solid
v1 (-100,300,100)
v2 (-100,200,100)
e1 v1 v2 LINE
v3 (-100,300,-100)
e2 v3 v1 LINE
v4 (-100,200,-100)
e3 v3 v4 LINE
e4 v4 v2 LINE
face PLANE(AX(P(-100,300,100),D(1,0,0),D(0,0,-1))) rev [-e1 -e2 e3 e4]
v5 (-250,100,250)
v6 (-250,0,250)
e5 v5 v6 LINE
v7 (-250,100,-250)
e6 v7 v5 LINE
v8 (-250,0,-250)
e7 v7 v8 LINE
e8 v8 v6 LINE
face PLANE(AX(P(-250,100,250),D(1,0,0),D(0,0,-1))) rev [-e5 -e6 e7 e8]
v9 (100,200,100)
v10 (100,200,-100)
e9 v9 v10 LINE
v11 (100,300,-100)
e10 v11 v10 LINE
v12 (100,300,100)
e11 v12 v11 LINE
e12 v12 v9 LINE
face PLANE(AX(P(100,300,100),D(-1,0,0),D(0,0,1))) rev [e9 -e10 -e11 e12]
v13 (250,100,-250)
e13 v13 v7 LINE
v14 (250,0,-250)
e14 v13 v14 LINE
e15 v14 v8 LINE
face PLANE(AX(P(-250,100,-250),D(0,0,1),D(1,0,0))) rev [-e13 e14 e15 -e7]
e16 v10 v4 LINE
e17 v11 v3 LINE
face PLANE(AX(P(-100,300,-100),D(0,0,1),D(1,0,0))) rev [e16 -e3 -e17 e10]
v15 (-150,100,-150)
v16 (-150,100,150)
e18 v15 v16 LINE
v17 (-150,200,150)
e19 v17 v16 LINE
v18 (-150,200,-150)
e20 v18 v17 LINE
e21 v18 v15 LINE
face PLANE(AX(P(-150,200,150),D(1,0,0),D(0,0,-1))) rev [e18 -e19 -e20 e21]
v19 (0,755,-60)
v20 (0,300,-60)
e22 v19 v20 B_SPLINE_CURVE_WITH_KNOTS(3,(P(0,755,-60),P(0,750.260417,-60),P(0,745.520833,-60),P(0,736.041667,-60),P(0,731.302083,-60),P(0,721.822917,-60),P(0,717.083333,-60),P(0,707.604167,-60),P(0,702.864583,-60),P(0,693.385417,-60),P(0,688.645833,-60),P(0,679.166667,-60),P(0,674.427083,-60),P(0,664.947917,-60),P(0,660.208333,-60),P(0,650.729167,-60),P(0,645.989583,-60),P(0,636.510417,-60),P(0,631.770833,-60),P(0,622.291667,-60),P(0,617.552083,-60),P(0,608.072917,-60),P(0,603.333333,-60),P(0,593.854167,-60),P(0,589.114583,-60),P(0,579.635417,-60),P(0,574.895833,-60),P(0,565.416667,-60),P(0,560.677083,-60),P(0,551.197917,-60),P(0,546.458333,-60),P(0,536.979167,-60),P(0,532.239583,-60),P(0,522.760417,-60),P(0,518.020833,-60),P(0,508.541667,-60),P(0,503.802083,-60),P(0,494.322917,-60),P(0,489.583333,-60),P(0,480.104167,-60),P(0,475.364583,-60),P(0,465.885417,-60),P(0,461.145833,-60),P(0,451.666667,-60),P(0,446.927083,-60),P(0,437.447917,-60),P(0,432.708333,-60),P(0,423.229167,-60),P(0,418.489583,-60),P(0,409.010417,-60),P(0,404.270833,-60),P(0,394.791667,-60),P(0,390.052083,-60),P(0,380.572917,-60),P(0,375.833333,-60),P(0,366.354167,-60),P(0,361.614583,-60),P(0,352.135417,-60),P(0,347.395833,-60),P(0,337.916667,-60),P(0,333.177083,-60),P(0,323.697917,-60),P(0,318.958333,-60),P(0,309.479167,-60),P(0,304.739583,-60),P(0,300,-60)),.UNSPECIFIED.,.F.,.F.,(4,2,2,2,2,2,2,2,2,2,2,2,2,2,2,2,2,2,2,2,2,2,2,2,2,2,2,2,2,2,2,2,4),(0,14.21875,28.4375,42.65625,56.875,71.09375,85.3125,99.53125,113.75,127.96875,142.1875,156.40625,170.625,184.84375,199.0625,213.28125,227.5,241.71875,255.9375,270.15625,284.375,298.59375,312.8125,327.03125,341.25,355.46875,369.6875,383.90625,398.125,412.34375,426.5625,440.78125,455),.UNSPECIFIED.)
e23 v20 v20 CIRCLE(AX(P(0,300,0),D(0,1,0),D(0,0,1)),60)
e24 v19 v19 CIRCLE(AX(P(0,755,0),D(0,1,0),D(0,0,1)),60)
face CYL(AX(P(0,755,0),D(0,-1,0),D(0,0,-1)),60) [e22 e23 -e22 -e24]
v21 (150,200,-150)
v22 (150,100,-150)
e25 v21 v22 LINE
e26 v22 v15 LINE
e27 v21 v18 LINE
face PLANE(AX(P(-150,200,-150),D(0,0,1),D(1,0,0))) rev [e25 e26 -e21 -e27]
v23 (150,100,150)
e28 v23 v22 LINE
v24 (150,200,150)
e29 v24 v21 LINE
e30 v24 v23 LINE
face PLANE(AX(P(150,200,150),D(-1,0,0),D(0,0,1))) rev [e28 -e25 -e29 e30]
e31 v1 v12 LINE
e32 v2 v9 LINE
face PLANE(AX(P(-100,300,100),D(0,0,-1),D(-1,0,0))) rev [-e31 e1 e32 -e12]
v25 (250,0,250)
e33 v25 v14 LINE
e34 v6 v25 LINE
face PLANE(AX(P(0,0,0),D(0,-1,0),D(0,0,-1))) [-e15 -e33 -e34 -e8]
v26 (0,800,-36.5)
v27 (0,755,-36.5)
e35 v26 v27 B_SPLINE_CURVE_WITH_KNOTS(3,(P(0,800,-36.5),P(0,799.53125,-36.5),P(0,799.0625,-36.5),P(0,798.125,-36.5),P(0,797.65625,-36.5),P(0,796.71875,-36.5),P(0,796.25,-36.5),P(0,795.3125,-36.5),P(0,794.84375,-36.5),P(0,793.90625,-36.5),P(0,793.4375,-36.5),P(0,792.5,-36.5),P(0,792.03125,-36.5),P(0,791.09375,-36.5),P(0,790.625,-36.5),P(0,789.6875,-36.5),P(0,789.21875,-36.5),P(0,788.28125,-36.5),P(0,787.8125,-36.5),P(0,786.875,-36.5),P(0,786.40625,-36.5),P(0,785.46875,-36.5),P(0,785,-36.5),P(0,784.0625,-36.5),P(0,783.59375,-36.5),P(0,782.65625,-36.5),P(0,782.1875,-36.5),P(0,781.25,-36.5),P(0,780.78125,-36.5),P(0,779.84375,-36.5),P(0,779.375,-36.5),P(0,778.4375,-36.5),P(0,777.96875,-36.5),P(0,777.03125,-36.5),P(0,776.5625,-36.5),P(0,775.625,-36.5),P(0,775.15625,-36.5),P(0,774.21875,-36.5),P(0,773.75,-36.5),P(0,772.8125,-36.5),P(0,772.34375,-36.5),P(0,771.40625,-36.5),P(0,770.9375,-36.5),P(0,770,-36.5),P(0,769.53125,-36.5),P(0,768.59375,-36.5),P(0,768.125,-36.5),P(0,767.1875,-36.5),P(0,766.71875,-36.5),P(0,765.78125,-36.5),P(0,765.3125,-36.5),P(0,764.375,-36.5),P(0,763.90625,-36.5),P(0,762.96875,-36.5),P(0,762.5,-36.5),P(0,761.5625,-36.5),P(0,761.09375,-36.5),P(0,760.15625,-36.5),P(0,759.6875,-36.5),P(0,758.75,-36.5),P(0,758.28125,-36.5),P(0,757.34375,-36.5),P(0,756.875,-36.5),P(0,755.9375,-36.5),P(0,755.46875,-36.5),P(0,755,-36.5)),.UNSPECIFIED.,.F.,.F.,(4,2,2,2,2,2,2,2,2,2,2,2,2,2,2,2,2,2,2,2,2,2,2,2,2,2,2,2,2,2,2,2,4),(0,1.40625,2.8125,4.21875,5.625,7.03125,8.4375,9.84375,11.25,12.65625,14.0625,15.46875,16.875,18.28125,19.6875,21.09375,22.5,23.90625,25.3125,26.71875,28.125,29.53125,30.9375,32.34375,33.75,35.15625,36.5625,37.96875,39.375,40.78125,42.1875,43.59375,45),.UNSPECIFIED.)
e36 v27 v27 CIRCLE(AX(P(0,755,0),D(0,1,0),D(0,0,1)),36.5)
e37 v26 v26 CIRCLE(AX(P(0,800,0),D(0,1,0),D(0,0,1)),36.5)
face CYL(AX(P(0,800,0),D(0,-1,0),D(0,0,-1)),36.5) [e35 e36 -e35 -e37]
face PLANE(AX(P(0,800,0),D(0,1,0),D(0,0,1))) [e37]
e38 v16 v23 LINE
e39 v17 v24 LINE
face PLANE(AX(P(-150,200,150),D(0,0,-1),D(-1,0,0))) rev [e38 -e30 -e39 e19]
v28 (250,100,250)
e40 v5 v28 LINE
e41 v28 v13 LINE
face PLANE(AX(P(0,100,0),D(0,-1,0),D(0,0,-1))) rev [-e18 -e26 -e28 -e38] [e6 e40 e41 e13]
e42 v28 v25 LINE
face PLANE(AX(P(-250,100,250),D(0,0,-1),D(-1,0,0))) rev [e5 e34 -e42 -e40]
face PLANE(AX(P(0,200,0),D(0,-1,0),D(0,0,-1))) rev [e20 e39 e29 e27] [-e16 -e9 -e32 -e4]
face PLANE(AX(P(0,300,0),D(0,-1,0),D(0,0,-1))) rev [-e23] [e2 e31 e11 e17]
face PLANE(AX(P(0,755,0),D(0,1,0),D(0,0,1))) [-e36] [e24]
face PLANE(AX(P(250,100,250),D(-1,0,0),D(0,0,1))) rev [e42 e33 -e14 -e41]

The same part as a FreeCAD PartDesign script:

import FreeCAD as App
import Part
import Sketcher
from FreeCAD import Vector

doc = App.newDocument("Part")
body = doc.addObject("PartDesign::Body", "Body")

sketch1 = body.newObject("Sketcher::SketchObject", "Sketch")
sketch1.AttachmentSupport = (doc.getObject("XZ_Plane"), [""])
sketch1.MapMode = "FlatFace"
sketch1.addGeometry(Part.LineSegment(Vector(-250, -250, 0), Vector(-250, 250, 0)), False)
sketch1.addGeometry(Part.LineSegment(Vector(-250, 250, 0), Vector(250, 250, 0)), False)
sketch1.addGeometry(Part.LineSegment(Vector(250, 250, 0), Vector(250, -250, 0)), False)
sketch1.addGeometry(Part.LineSegment(Vector(250, -250, 0), Vector(-250, -250, 0)), False)
sketch1.addConstraint(Sketcher.Constraint("Coincident", 0, 2, 1, 1))
sketch1.addConstraint(Sketcher.Constraint("Coincident", 1, 2, 2, 1))
sketch1.addConstraint(Sketcher.Constraint("Coincident", 2, 2, 3, 1))
sketch1.addConstraint(Sketcher.Constraint("Coincident", 3, 2, 0, 1))
sketch1.addConstraint(Sketcher.Constraint("Vertical", 0))
sketch1.addConstraint(Sketcher.Constraint("Horizontal", 1))
sketch1.addConstraint(Sketcher.Constraint("Vertical", 2))
sketch1.addConstraint(Sketcher.Constraint("Horizontal", 3))
sketch1.addConstraint(Sketcher.Constraint("Symmetric", 0, 2, 2, 2, -1, 1))
sketch1.addConstraint(Sketcher.Constraint("Equal", 3, 0))
sketch1.addConstraint(Sketcher.Constraint("DistanceX", 1, 1, 1, 2, 500.0))
pad1 = body.newObject("PartDesign::Pad", "Pad")
pad1.Profile = sketch1
pad1.Length = 100
pad1.Reversed = True

sketch2 = body.newObject("Sketcher::SketchObject", "Sketch001")
sketch2.AttachmentSupport = (doc.getObject("XZ_Plane"), [""])
sketch2.MapMode = "FlatFace"
sketch2.AttachmentOffset = App.Placement(Vector(0, 0, -100), App.Rotation())
sketch2.addGeometry(Part.LineSegment(Vector(-150, -150, 0), Vector(-150, 150, 0)), False)
sketch2.addGeometry(Part.LineSegment(Vector(-150, 150, 0), Vector(150, 150, 0)), False)
sketch2.addGeometry(Part.LineSegment(Vector(150, 150, 0), Vector(150, -150, 0)), False)
sketch2.addGeometry(Part.LineSegment(Vector(150, -150, 0), Vector(-150, -150, 0)), False)
sketch2.addConstraint(Sketcher.Constraint("Coincident", 0, 2, 1, 1))
sketch2.addConstraint(Sketcher.Constraint("Coincident", 1, 2, 2, 1))
sketch2.addConstraint(Sketcher.Constraint("Coincident", 2, 2, 3, 1))
sketch2.addConstraint(Sketcher.Constraint("Coincident", 3, 2, 0, 1))
sketch2.addConstraint(Sketcher.Constraint("Vertical", 0))
sketch2.addConstraint(Sketcher.Constraint("Horizontal", 1))
sketch2.addConstraint(Sketcher.Constraint("Vertical", 2))
sketch2.addConstraint(Sketcher.Constraint("Horizontal", 3))
sketch2.addConstraint(Sketcher.Constraint("Symmetric", 0, 2, 2, 2, -1, 1))
sketch2.addConstraint(Sketcher.Constraint("Equal", 3, 0))
sketch2.addConstraint(Sketcher.Constraint("DistanceX", 1, 1, 1, 2, 300.0))
pad2 = body.newObject("PartDesign::Pad", "Pad001")
pad2.Profile = sketch2
pad2.Length = 100
pad2.Reversed = True

sketch3 = body.newObject("Sketcher::SketchObject", "Sketch002")
sketch3.AttachmentSupport = (doc.getObject("XZ_Plane"), [""])
sketch3.MapMode = "FlatFace"
sketch3.AttachmentOffset = App.Placement(Vector(0, 0, -200), App.Rotation())
sketch3.addGeometry(Part.LineSegment(Vector(-100, -100, 0), Vector(-100, 100, 0)), False)
sketch3.addGeometry(Part.LineSegment(Vector(-100, 100, 0), Vector(100, 100, 0)), False)
sketch3.addGeometry(Part.LineSegment(Vector(100, 100, 0), Vector(100, -100, 0)), False)
sketch3.addGeometry(Part.LineSegment(Vector(100, -100, 0), Vector(-100, -100, 0)), False)
sketch3.addConstraint(Sketcher.Constraint("Coincident", 0, 2, 1, 1))
sketch3.addConstraint(Sketcher.Constraint("Coincident", 1, 2, 2, 1))
sketch3.addConstraint(Sketcher.Constraint("Coincident", 2, 2, 3, 1))
sketch3.addConstraint(Sketcher.Constraint("Coincident", 3, 2, 0, 1))
sketch3.addConstraint(Sketcher.Constraint("Vertical", 0))
sketch3.addConstraint(Sketcher.Constraint("Horizontal", 1))
sketch3.addConstraint(Sketcher.Constraint("Vertical", 2))
sketch3.addConstraint(Sketcher.Constraint("Horizontal", 3))
sketch3.addConstraint(Sketcher.Constraint("Symmetric", 0, 2, 2, 2, -1, 1))
sketch3.addConstraint(Sketcher.Constraint("Equal", 3, 0))
sketch3.addConstraint(Sketcher.Constraint("DistanceX", 1, 1, 1, 2, 200.0))
pad3 = body.newObject("PartDesign::Pad", "Pad002")
pad3.Profile = sketch3
pad3.Length = 100
pad3.Reversed = True

sketch4 = body.newObject("Sketcher::SketchObject", "Sketch003")
sketch4.AttachmentSupport = (doc.getObject("XZ_Plane"), [""])
sketch4.MapMode = "FlatFace"
sketch4.AttachmentOffset = App.Placement(Vector(0, 0, -300), App.Rotation())
sketch4.addGeometry(Part.Circle(Vector(0, 0, 0), Vector(0, 0, 1), 60), False)
sketch4.addConstraint(Sketcher.Constraint("Coincident", 0, 3, -1, 1))
sketch4.addConstraint(Sketcher.Constraint("Diameter", 0, 120.0))
pad4 = body.newObject("PartDesign::Pad", "Pad003")
pad4.Profile = sketch4
pad4.Length = 455
pad4.Reversed = True

sketch5 = body.newObject("Sketcher::SketchObject", "Sketch004")
sketch5.AttachmentSupport = (doc.getObject("XZ_Plane"), [""])
sketch5.MapMode = "FlatFace"
sketch5.AttachmentOffset = App.Placement(Vector(0, 0, -755), App.Rotation())
sketch5.addGeometry(Part.Circle(Vector(0, 0, 0), Vector(0, 0, 1), 36.5), False)
sketch5.addConstraint(Sketcher.Constraint("Coincident", 0, 3, -1, 1))
sketch5.addConstraint(Sketcher.Constraint("Diameter", 0, 73.0))
pad5 = body.newObject("PartDesign::Pad", "Pad004")
pad5.Profile = sketch5
pad5.Length = 45
pad5.Reversed = True

doc.recompute()
